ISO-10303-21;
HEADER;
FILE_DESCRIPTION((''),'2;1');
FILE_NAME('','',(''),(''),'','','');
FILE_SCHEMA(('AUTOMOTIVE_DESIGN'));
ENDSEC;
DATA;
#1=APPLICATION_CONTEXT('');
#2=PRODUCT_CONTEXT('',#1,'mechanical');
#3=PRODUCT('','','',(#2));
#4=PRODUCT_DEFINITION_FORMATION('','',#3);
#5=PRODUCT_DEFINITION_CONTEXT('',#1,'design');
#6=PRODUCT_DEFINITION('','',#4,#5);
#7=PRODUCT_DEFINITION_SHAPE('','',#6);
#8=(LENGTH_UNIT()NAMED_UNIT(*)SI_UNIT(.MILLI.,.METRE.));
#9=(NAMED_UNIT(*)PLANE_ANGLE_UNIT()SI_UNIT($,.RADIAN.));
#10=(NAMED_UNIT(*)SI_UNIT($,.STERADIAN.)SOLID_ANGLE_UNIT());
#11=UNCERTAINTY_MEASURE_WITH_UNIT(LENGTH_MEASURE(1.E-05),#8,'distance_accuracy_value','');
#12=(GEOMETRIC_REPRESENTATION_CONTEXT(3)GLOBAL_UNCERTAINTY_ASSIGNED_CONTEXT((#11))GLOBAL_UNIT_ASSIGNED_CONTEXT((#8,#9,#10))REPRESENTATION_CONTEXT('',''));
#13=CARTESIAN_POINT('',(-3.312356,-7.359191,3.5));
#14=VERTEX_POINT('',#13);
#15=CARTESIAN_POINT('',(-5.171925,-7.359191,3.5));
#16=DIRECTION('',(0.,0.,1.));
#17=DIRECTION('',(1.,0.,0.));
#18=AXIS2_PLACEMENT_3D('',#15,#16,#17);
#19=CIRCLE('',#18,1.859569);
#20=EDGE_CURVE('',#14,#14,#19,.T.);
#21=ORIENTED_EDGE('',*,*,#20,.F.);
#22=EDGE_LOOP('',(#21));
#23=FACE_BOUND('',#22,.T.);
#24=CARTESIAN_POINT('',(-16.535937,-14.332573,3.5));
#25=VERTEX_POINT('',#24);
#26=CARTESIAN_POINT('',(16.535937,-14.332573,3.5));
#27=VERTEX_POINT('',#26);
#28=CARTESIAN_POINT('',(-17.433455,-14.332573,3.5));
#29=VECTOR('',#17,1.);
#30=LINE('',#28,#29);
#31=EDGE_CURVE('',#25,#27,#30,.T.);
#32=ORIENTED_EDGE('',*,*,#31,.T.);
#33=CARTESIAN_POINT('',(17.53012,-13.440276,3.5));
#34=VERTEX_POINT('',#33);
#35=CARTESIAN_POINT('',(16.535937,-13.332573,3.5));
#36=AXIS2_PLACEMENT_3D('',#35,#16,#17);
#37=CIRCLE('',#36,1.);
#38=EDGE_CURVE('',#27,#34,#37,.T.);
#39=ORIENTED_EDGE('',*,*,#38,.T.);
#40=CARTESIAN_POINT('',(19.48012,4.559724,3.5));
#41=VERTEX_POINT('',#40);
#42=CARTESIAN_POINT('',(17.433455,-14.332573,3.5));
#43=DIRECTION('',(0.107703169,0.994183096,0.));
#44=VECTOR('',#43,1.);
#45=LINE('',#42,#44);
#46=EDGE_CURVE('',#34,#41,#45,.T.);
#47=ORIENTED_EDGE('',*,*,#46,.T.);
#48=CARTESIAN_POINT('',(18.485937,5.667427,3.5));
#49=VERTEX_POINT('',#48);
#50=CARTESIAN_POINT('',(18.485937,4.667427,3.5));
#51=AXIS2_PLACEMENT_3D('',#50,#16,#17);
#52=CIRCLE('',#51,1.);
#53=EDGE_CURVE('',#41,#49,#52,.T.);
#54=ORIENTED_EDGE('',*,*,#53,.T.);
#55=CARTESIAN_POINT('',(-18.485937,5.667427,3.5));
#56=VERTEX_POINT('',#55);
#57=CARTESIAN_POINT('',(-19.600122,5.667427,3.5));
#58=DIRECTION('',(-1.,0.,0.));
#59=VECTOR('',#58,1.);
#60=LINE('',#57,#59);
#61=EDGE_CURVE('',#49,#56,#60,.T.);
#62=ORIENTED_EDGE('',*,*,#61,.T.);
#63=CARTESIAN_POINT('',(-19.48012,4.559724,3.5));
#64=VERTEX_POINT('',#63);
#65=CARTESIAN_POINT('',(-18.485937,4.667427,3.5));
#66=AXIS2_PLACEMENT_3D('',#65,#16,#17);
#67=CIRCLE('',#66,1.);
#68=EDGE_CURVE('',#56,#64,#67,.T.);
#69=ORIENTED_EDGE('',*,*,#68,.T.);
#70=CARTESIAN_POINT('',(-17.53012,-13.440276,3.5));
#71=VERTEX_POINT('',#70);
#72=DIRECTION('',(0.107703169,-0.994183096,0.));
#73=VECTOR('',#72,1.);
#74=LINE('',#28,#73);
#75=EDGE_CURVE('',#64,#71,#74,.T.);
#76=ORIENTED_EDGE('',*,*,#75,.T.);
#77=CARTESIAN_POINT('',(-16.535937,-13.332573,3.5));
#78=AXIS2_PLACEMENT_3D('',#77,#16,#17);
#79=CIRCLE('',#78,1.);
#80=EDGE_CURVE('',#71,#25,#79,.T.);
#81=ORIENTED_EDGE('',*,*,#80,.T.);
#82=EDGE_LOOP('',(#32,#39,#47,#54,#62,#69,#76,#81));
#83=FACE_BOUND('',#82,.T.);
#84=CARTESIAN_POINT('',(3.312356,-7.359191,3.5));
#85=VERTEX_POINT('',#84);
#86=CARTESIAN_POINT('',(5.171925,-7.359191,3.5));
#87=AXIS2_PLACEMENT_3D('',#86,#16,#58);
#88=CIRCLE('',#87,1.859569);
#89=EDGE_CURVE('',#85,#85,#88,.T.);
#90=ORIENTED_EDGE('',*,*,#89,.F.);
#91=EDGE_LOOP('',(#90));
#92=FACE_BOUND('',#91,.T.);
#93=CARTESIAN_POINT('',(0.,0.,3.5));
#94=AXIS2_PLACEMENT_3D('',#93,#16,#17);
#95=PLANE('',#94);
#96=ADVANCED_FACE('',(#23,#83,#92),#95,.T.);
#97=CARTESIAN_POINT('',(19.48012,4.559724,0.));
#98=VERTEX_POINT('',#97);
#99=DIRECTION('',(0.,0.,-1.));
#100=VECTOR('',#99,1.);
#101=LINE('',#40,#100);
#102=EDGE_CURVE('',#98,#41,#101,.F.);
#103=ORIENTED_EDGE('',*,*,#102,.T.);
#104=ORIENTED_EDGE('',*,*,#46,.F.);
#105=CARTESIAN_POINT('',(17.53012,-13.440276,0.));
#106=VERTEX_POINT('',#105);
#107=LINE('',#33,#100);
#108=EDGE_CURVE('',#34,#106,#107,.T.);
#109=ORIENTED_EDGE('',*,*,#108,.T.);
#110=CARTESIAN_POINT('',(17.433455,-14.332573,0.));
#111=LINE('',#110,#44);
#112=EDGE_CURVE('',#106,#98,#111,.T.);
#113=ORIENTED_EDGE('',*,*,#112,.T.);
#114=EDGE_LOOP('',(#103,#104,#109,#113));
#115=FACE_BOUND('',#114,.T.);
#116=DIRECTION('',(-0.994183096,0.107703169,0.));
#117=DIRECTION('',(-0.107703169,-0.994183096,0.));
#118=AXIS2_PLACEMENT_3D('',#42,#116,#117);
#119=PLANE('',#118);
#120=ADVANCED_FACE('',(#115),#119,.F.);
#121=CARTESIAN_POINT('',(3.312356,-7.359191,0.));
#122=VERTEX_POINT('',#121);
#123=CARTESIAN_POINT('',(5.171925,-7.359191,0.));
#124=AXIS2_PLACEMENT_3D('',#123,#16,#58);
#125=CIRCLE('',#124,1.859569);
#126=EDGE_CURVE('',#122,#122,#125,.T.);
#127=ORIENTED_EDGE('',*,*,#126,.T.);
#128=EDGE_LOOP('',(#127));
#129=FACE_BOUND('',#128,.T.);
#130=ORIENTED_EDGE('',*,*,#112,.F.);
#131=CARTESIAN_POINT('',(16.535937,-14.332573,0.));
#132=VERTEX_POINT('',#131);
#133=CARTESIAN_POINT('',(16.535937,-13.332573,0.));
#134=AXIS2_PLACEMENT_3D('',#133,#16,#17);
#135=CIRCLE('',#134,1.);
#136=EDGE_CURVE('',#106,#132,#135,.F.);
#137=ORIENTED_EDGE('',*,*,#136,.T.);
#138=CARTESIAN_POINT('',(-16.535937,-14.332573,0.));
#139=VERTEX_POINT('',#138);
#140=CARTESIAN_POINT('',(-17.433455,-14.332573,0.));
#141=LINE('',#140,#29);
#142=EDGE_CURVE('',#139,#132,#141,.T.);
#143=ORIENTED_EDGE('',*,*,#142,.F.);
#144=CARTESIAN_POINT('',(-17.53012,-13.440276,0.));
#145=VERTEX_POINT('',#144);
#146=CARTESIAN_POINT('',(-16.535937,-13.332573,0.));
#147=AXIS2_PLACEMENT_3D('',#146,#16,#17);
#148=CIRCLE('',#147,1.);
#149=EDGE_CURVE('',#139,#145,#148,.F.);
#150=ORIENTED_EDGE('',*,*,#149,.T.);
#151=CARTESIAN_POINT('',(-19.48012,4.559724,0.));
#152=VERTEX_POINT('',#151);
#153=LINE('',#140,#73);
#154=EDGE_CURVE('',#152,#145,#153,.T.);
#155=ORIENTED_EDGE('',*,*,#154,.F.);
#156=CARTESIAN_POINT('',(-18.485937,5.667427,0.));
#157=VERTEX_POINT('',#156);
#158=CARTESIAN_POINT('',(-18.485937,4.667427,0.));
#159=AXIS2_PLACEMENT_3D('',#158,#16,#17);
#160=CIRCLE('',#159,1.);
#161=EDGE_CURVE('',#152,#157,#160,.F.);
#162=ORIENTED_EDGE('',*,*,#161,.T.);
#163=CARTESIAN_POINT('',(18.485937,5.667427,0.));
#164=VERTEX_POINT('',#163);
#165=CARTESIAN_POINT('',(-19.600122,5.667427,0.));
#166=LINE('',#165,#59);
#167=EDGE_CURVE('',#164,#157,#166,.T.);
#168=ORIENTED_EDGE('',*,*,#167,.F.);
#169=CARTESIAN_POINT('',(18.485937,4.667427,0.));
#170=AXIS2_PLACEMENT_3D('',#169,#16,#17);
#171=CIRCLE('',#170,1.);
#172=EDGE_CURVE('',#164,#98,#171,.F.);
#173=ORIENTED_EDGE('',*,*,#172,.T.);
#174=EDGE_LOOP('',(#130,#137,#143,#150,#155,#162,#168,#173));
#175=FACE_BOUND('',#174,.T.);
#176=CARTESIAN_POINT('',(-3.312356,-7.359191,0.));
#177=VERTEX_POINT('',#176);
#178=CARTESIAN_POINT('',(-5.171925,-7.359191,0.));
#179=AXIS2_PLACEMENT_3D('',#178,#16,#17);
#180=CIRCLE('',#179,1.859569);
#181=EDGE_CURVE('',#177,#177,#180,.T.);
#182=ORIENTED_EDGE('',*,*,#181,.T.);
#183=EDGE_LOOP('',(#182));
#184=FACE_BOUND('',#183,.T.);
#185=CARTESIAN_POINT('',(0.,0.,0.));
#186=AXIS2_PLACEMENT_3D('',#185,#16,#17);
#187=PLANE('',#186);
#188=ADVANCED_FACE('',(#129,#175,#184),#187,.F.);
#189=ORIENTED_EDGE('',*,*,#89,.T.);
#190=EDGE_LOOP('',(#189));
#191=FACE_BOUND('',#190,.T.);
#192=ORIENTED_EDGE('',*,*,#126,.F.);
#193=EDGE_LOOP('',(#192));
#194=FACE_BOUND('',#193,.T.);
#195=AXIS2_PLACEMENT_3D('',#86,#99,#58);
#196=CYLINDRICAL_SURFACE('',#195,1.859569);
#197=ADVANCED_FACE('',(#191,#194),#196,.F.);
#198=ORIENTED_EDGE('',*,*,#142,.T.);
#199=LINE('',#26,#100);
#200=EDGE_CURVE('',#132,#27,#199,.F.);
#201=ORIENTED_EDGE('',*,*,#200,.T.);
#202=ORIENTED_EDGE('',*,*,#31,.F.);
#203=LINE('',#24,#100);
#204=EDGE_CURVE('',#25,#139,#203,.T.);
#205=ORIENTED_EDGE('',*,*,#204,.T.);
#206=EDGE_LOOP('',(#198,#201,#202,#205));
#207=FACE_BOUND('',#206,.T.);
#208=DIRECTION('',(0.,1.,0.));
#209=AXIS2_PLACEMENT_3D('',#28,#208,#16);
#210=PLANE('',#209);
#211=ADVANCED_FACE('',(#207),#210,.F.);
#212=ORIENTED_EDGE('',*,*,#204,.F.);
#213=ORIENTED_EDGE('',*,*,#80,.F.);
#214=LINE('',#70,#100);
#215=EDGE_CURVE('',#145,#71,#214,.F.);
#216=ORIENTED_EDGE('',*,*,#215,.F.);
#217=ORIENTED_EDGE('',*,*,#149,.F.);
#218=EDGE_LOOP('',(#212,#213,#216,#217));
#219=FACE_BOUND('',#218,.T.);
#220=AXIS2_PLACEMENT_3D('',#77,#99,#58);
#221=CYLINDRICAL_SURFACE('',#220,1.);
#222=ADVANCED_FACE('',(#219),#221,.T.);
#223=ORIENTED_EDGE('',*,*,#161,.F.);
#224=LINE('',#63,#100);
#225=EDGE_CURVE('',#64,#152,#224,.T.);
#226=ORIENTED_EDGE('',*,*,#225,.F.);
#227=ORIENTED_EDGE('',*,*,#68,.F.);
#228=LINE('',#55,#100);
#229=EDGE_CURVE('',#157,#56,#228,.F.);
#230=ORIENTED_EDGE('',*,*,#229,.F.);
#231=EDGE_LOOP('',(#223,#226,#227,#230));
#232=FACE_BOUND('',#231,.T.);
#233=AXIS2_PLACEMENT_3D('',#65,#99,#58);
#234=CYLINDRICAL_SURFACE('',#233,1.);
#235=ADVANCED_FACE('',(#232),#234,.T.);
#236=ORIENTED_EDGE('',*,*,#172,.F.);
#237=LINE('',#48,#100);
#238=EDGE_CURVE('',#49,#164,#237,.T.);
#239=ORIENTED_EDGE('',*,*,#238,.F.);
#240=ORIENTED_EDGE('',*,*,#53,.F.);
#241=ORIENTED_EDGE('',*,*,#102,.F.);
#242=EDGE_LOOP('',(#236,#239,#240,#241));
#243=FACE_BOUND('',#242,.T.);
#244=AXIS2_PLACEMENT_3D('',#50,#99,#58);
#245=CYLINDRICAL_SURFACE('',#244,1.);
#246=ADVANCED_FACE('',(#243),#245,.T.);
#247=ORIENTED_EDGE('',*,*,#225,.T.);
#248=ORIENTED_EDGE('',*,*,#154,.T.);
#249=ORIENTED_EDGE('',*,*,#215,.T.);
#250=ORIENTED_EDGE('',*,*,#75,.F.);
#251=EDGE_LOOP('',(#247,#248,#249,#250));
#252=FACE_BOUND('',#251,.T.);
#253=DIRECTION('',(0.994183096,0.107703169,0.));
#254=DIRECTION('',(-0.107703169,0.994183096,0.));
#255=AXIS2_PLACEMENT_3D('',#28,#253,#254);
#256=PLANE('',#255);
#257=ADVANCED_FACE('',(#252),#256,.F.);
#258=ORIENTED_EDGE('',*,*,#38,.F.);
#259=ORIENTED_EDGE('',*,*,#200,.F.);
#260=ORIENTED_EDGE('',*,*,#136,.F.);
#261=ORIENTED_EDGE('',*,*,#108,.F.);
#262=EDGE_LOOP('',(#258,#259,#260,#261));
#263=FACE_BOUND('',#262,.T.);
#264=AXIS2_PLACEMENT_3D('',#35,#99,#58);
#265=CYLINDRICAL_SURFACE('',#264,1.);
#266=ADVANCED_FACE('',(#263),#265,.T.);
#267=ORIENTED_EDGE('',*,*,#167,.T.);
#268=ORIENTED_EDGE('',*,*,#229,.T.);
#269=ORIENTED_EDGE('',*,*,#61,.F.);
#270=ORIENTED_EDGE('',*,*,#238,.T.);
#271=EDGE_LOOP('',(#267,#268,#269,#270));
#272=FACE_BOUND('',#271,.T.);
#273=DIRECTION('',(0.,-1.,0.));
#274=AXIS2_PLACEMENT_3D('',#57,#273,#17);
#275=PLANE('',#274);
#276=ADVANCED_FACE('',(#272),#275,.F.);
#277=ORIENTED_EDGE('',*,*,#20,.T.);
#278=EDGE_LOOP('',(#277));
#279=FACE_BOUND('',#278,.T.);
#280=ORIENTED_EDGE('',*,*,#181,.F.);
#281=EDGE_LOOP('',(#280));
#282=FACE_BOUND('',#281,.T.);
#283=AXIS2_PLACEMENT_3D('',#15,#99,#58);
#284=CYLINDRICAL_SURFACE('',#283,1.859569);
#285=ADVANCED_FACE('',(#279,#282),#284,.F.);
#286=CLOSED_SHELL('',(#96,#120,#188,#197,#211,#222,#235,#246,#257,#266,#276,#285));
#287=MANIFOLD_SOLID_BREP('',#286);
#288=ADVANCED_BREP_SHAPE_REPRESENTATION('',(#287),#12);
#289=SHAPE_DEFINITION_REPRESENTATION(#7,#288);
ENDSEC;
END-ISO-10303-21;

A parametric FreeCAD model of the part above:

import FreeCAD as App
import Part
import Sketcher

V = App.Vector
Q = App.Units.Quantity


def edges_at(feature, points):
    """Names of the edges that pass closest to the given points."""
    edges = feature.Shape.Edges
    near = lambda p: min(range(len(edges)), key=lambda i: edges[i].distToShape(Part.Vertex(*p))[0])
    return sorted({f"Edge{near(p) + 1}" for p in points})

doc = App.newDocument("Part")
params = doc.addObject("Spreadsheet::Sheet", "Params")
for row, (alias, value) in enumerate([
    ("pad1_length", "3.5 mm"),
    ("fillet_radius", "1 mm"),
], start=1):
    params.set(f"A{row}", alias)
    params.set(f"B{row}", "=" + value)
    params.setAlias(f"B{row}", alias)

body = doc.addObject("PartDesign::Body", "Body")

sketch1 = doc.addObject("Sketcher::SketchObject", "Sketch")
body.addObject(sketch1)
sketch1.AttachmentSupport = (doc.XY_Plane, [""])
sketch1.MapMode = "FlatFace"
sketch1.addGeometry([
    Part.LineSegment(V(-19.6, 5.7, 0), V(-17.4, -14.3, 0)),
    Part.LineSegment(V(-17.4, -14.3, 0), V(17.4, -14.3, 0)),
    Part.LineSegment(V(17.4, -14.3, 0), V(19.6, 5.7, 0)),
    Part.LineSegment(V(19.6, 5.7, 0), V(-19.6, 5.7, 0)),
    Part.Circle(V(5.2, -7.4, 0), V(0, 0, 1), 1.9),
    Part.Circle(V(-5.2, -7.4, 0), V(0, 0, 1), 1.9),
], False)
sketch1.addConstraint([
    Sketcher.Constraint("Coincident", 0, 2, 1, 1),
    Sketcher.Constraint("Coincident", 1, 2, 2, 1),
    Sketcher.Constraint("Coincident", 2, 2, 3, 1),
    Sketcher.Constraint("Coincident", 3, 2, 0, 1),
    Sketcher.Constraint("Horizontal", 1),
    Sketcher.Constraint("Horizontal", 3),
    Sketcher.Constraint("Equal", 4, 5),
    Sketcher.Constraint("Symmetric", 4, 3, 5, 3, -2),
    Sketcher.Constraint("Equal", 0, 2),
    Sketcher.Constraint("DistanceY", 1, 2, 2, 2, Q("20 mm")),
    Sketcher.Constraint("Diameter", 4, Q("3.719137 mm")),
    Sketcher.Constraint("DistanceX", 1, 1, 1, 2, Q("34.86691 mm")),
    Sketcher.Constraint("Distance", 0, Q("20.117019 mm")),
    Sketcher.Constraint("DistanceY", 4, 3, -1, 1, Q("7.359191 mm")),
    Sketcher.Constraint("DistanceX", -1, 1, 2, 2, Q("19.600122 mm")),
    Sketcher.Constraint("DistanceX", 5, 3, 4, 3, Q("10.34385 mm")),
    Sketcher.Constraint("DistanceY", 0, 2, 5, 3, Q("6.973382 mm")),
])
pad1 = doc.addObject("PartDesign::Pad", "Pad")
body.addObject(pad1)
pad1.Profile = sketch1
pad1.setExpression("Length", "Params.pad1_length")
doc.recompute()

fillet = doc.addObject("PartDesign::Fillet", "Fillet")
body.addObject(fillet)
fillet.Base = (pad1, edges_at(pad1, [
    (-17.433, -14.333, 1.75),
    (-19.6, 5.667, 1.75),
    (19.6, 5.667, 1.75),
    (17.433, -14.333, 1.75),
]))
fillet.setExpression("Radius", "Params.fillet_radius")

doc.recompute()
